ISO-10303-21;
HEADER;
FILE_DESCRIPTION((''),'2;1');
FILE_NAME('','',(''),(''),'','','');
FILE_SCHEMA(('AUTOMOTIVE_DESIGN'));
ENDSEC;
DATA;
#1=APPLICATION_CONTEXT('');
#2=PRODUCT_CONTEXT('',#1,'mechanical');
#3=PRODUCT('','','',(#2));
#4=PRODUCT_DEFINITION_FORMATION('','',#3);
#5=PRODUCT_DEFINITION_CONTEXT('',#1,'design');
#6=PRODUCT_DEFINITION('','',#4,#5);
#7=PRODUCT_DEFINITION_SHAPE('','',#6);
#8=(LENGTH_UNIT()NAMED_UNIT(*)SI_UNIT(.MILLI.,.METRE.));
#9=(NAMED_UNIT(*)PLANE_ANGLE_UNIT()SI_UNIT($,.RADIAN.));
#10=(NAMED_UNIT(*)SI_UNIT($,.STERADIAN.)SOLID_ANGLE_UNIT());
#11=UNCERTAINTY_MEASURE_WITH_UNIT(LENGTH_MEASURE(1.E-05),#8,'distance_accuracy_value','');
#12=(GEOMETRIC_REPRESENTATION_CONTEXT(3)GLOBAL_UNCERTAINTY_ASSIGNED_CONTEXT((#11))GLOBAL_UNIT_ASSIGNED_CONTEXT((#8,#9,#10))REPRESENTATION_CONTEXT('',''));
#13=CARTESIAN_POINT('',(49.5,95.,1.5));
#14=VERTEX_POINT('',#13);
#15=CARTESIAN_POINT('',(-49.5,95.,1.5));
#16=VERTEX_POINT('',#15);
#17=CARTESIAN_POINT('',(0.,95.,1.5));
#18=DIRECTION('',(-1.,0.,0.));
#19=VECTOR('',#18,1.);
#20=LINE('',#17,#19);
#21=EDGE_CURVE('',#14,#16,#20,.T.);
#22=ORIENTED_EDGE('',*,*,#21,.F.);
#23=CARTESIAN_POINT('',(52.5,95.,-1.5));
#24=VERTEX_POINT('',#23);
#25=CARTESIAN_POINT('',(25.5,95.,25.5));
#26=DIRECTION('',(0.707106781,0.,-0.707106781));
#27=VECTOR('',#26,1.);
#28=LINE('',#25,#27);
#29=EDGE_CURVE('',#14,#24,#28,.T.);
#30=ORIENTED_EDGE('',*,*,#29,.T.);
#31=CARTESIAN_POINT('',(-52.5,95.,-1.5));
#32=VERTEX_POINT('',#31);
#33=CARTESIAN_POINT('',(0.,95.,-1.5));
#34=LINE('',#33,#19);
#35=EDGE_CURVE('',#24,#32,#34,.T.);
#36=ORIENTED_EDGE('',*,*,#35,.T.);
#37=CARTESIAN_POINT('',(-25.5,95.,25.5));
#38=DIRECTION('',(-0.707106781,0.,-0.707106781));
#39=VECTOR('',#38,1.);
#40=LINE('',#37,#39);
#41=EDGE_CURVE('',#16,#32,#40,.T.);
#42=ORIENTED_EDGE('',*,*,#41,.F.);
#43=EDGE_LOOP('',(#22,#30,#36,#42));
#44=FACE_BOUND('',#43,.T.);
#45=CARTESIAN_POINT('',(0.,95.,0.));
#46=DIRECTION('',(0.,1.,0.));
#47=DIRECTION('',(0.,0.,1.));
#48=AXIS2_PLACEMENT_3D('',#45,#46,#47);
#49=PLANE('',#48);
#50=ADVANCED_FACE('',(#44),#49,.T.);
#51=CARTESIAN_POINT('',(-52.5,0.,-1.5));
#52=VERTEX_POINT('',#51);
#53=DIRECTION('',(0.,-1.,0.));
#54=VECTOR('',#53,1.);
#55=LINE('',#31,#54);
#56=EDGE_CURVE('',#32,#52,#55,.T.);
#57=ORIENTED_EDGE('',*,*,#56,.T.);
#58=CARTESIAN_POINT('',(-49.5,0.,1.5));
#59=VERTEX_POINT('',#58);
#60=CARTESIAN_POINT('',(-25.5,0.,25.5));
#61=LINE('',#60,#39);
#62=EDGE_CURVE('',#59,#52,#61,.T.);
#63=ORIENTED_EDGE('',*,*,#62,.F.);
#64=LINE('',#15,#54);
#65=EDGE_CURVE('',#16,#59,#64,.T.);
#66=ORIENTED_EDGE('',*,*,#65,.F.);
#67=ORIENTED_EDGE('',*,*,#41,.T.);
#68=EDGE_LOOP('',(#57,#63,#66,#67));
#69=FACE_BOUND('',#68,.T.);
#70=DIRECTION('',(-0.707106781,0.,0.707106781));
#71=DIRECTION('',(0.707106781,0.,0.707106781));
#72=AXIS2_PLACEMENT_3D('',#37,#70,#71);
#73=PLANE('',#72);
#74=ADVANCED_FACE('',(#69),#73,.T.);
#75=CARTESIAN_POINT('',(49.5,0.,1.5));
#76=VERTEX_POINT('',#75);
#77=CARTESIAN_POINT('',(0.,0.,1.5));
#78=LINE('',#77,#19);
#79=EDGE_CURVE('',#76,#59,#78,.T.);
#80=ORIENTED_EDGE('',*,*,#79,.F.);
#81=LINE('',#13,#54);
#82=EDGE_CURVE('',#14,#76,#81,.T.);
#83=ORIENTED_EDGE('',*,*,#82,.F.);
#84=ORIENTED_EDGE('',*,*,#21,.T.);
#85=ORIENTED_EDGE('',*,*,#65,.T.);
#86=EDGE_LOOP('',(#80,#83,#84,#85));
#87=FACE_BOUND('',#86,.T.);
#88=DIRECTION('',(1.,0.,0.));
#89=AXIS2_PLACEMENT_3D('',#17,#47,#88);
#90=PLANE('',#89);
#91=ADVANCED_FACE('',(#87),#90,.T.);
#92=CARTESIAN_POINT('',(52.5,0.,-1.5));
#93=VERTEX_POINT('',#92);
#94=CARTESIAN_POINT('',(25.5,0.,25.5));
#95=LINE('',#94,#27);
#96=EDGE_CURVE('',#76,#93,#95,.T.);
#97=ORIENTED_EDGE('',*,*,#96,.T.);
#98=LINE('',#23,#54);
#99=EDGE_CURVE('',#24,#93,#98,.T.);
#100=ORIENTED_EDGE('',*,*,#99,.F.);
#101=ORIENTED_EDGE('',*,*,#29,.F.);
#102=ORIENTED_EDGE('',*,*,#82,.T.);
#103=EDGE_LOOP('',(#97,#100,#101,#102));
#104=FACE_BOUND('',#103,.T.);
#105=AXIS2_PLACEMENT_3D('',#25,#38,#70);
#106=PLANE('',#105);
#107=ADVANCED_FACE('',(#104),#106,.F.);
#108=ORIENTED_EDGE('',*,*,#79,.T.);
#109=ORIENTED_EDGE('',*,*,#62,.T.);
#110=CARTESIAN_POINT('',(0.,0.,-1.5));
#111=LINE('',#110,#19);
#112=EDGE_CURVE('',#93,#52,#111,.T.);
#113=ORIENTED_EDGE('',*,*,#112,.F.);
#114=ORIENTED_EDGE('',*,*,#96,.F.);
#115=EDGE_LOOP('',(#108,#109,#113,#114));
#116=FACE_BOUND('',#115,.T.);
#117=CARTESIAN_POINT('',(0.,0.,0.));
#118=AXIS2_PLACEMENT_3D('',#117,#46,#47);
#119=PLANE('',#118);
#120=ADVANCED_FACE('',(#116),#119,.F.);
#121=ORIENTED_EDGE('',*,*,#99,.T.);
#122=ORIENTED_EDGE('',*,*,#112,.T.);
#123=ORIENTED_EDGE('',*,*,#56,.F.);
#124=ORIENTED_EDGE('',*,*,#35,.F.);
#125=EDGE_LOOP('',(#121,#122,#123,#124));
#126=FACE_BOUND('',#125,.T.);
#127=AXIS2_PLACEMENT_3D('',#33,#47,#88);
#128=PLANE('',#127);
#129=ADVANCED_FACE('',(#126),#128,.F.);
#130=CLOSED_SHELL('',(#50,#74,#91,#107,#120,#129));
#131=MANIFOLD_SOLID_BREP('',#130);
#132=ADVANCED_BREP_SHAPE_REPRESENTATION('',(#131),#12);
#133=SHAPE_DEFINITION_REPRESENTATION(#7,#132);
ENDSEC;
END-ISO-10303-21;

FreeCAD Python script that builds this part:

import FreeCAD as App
import Part
import Sketcher
Q = App.Units.Quantity


def add_polygon(sketch, points):
    """Adds a closed chain of lines whose ends are joined by coincident constraints."""
    first, n = sketch.GeometryCount, len(points)
    for a, b in zip(points, points[1:] + points[:1]):
        sketch.addGeometry(Part.LineSegment(App.Vector(*a, 0), App.Vector(*b, 0)), False)
    for i in range(n):
        sketch.addConstraint(Sketcher.Constraint("Coincident", first + i, 2, first + (i + 1) % n, 1))

doc = App.newDocument("Part")
params = doc.addObject("Spreadsheet::Sheet", "Params")
for row, (alias, value) in enumerate([
    ("sketch1_width", "105 mm"),
    ("sketch1_width2", "99 mm"),
    ("pad1_length", "95 mm"),
], start=1):
    params.set(f"A{row}", alias)
    params.set(f"B{row}", "=" + value)
    params.setAlias(f"B{row}", alias)

body = doc.addObject("PartDesign::Body", "Body")

# Sketch on XZ plane
sketch1 = body.newObject("Sketcher::SketchObject", "Sketch")
sketch1.AttachmentSupport = (doc.getObject("XZ_Plane"), [""])
sketch1.MapMode = "FlatFace"
add_polygon(sketch1, [(52.5, -1.5), (-52.5, -1.5), (-49.5, 1.5), (49.5, 1.5)])  # lines 0-3
sketch1.addConstraint([
    Sketcher.Constraint("Horizontal", 0),
    Sketcher.Constraint("Horizontal", 2),
    Sketcher.Constraint("Perpendicular", 1, 3),
    Sketcher.Constraint("Equal", 1, 3),
    Sketcher.Constraint("DistanceX", 0, 2, 0, 1, Q("105 mm")),
    Sketcher.Constraint("DistanceX", 2, 1, 2, 2, Q("99 mm")),
    Sketcher.Constraint("DistanceX", 0, 2, -1, 1, Q("52.5 mm")),
    Sketcher.Constraint("DistanceY", 0, 2, -1, 1, Q("1.5 mm")),
])
sketch1.setExpression("Constraints[8]", "Params.sketch1_width")
sketch1.setExpression("Constraints[9]", "Params.sketch1_width2")
pad1 = body.newObject("PartDesign::Pad", "Pad")
pad1.Profile = sketch1
pad1.setExpression("Length", "Params.pad1_length")
pad1.Reversed = True

doc.recompute()
